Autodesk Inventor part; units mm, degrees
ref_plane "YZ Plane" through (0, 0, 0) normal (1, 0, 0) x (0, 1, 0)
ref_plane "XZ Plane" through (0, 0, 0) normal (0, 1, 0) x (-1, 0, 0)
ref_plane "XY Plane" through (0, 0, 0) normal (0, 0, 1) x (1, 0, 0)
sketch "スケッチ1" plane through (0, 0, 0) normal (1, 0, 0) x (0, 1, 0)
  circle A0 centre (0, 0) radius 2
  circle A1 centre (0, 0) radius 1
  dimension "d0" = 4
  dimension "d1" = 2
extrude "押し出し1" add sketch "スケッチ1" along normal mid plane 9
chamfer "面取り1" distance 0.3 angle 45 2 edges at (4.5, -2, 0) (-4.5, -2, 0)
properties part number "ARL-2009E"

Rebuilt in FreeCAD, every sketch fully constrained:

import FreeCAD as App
import Part
import Sketcher
from FreeCAD import Vector


def edges_at(feature, points):
    """Names of the edges that pass closest to the given points."""
    edges = feature.Shape.Edges
    near = lambda p: min(range(len(edges)), key=lambda i: edges[i].distToShape(Part.Vertex(*p))[0])
    return sorted({f"Edge{near(p) + 1}" for p in points})

doc = App.newDocument("Part")
params = doc.addObject("Spreadsheet::Sheet", "Params")
for row, (alias, value) in enumerate([
    ("sketch1_diameter", "4 mm"),
    ("sketch1_diameter2", "2 mm"),
    ("pad1_length", "9 mm"),
    ("chamfer_size", "0.3 mm"),
], start=1):
    params.set(f"A{row}", alias)
    params.set(f"B{row}", "=" + value)
    params.setAlias(f"B{row}", alias)

body = doc.addObject("PartDesign::Body", "Body")

# Sketch on YZ plane
sketch1 = body.newObject("Sketcher::SketchObject", "Sketch")
sketch1.AttachmentSupport = (doc.getObject("YZ_Plane"), [""])
sketch1.MapMode = "FlatFace"
sketch1.addGeometry(Part.Circle(Vector(0, 0, 0), Vector(0, 0, 1), 2), False)
sketch1.addGeometry(Part.Circle(Vector(0, 0, 0), Vector(0, 0, 1), 1), False)
sketch1.addConstraint(Sketcher.Constraint("Coincident", 0, 3, -1, 1))
sketch1.addConstraint(Sketcher.Constraint("Coincident", 1, 3, -1, 1))
sketch1.addConstraint(Sketcher.Constraint("Diameter", 0, 4.0))
sketch1.addConstraint(Sketcher.Constraint("Diameter", 1, 2.0))
sketch1.setExpression("Constraints[2]", "Params.sketch1_diameter")
sketch1.setExpression("Constraints[3]", "Params.sketch1_diameter2")
pad1 = body.newObject("PartDesign::Pad", "Pad")
pad1.Profile = sketch1
pad1.setExpression("Length", "Params.pad1_length")
pad1.Midplane = True
doc.recompute()

chamfer = body.newObject("PartDesign::Chamfer", "Chamfer")
chamfer.Base = (pad1, edges_at(pad1, [(4.5, -2, 0), (-4.5, -2, 0)]))
chamfer.setExpression("Size", "Params.chamfer_size")

doc.recompute()
